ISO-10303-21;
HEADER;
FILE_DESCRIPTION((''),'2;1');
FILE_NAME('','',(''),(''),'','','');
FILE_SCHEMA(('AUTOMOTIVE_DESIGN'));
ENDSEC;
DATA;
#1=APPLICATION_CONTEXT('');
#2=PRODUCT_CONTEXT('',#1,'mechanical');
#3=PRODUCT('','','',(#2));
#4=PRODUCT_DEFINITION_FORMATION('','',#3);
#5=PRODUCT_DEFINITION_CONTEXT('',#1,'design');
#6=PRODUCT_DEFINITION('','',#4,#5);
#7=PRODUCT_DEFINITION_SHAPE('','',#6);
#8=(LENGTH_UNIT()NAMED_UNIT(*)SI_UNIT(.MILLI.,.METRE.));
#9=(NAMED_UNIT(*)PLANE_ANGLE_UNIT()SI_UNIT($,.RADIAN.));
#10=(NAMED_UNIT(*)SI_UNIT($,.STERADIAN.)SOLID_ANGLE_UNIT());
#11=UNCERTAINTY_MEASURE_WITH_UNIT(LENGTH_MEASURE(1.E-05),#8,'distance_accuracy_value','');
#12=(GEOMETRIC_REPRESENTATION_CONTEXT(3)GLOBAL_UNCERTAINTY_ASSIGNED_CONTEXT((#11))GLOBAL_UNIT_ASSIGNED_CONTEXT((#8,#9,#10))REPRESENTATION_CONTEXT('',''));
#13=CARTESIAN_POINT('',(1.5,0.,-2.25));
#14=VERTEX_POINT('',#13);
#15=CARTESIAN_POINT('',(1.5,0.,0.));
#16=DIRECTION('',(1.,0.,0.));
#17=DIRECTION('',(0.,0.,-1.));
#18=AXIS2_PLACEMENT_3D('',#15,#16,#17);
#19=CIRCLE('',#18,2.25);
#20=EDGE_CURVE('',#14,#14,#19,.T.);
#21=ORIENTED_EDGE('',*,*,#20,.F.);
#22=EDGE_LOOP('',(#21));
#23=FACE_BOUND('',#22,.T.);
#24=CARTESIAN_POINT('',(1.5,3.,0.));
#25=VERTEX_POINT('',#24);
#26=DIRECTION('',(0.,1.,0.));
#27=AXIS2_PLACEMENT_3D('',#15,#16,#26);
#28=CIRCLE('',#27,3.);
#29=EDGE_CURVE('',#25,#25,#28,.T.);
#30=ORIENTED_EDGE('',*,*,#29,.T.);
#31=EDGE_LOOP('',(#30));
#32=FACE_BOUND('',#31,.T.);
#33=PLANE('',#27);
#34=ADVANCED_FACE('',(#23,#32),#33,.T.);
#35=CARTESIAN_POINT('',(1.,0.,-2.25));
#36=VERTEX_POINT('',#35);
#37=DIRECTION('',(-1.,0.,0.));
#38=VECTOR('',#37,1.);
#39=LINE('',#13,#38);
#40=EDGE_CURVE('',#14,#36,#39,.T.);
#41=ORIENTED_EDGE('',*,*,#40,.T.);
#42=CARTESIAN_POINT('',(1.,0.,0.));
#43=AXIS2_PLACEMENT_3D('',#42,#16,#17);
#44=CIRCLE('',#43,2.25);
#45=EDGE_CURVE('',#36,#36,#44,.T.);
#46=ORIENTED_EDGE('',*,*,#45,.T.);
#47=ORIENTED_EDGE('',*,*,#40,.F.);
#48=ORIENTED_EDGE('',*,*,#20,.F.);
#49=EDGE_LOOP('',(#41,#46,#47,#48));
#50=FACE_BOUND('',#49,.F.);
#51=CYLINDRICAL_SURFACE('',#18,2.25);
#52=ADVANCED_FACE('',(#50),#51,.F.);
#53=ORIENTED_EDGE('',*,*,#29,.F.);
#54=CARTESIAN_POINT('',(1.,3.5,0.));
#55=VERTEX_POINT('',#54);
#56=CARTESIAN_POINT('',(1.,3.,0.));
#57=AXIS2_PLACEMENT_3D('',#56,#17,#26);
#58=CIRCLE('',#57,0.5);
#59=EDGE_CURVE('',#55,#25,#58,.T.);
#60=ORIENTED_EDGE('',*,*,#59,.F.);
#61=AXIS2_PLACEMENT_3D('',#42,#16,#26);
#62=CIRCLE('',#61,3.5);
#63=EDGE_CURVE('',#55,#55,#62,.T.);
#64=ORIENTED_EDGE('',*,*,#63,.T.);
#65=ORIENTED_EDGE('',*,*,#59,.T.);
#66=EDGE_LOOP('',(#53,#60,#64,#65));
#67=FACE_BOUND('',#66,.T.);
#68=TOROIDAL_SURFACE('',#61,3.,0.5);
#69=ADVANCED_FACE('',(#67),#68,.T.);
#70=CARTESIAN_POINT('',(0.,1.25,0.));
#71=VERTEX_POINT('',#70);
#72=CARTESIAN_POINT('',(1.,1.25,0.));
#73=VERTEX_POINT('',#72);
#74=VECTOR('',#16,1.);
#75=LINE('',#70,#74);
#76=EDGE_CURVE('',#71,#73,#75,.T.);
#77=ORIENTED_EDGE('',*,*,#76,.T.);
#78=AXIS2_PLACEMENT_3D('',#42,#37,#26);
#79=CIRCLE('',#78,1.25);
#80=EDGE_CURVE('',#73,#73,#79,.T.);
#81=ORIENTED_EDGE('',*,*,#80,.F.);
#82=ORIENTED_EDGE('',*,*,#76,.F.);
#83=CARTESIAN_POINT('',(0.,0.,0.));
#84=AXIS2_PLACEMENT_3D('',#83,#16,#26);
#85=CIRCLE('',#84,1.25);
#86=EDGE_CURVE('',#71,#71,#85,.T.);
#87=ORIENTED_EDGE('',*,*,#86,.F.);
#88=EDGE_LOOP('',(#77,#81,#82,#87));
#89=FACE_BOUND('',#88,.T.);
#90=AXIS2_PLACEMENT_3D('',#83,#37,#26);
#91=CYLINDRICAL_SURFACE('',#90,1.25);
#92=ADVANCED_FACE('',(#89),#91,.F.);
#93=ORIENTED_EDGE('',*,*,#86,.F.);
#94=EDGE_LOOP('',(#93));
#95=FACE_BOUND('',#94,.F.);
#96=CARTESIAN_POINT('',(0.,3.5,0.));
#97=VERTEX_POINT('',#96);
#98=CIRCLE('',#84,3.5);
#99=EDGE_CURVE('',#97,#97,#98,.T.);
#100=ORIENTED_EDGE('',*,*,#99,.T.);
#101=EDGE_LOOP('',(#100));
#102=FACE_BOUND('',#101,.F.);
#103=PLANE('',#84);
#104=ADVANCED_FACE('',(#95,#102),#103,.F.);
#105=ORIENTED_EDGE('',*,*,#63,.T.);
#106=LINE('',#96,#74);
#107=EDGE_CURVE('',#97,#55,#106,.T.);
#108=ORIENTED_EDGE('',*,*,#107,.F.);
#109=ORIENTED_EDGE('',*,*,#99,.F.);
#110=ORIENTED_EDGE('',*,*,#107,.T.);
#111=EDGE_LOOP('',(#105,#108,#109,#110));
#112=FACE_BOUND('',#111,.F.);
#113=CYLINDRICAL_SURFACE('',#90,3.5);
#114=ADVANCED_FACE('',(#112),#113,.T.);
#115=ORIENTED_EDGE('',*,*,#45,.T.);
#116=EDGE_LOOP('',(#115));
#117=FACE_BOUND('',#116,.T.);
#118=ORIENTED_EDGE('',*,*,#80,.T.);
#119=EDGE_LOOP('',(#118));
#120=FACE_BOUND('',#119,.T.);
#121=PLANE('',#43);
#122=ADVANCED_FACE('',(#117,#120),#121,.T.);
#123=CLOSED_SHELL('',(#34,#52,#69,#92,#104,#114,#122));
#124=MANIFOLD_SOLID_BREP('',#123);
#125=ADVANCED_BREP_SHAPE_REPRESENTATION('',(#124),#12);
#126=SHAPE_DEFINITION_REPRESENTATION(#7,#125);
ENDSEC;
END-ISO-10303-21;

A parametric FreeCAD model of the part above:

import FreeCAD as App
import Part
import Sketcher
from FreeCAD import Vector
Q = App.Units.Quantity


def edges_at(feature, points):
    """Names of the edges that pass closest to the given points."""
    edges = feature.Shape.Edges
    near = lambda p: min(range(len(edges)), key=lambda i: edges[i].distToShape(Part.Vertex(*p))[0])
    return sorted({f"Edge{near(p) + 1}" for p in points})

doc = App.newDocument("Part")
body = doc.addObject("PartDesign::Body", "Body")

# Sketch on YZ plane
sketch1 = doc.addObject("Sketcher::SketchObject", "Sketch")
body.addObject(sketch1)
sketch1.AttachmentSupport = (doc.YZ_Plane, [""])
sketch1.MapMode = "FlatFace"
sketch1.addGeometry(Part.Circle(Vector(0, 0, 0), Vector(0, 0, 1), 3.5), False)
sketch1.addGeometry(Part.Circle(Vector(0, 0, 0), Vector(0, 0, 1), 1.2), False)
sketch1.addConstraint(Sketcher.Constraint("Coincident", 0, 3, -1, 1))
sketch1.addConstraint(Sketcher.Constraint("Coincident", 1, 3, -1, 1))
sketch1.addConstraint(Sketcher.Constraint("Diameter", 0, Q("7 mm")))
sketch1.addConstraint(Sketcher.Constraint("Diameter", 1, Q("2.5 mm")))
pad1 = doc.addObject("PartDesign::Pad", "Pad")
body.addObject(pad1)
pad1.Profile = sketch1
pad1.Length = 1.5

# Sketch on YZ plane
sketch2 = doc.addObject("Sketcher::SketchObject", "Sketch001")
body.addObject(sketch2)
sketch2.AttachmentSupport = (doc.YZ_Plane, [""])
sketch2.MapMode = "FlatFace"
sketch2.AttachmentOffset = App.Placement(Vector(0, 0, 1.5), App.Rotation())
sketch2.addGeometry(Part.Circle(Vector(0, 0, 0), Vector(0, 0, 1), 2.2), False)
sketch2.addConstraint(Sketcher.Constraint("Coincident", 0, 3, -1, 1))
sketch2.addConstraint(Sketcher.Constraint("Diameter", 0, Q("4.5 mm")))
pocket1 = doc.addObject("PartDesign::Pocket", "Pocket")
body.addObject(pocket1)
pocket1.Profile = sketch2
pocket1.Length = 0.5
doc.recompute()

fillet = doc.addObject("PartDesign::Fillet", "Fillet")
body.addObject(fillet)
fillet.Base = (pocket1, edges_at(pocket1, [(1.5, -3.5, 0)]))
fillet.Radius = 0.5

doc.recompute()
